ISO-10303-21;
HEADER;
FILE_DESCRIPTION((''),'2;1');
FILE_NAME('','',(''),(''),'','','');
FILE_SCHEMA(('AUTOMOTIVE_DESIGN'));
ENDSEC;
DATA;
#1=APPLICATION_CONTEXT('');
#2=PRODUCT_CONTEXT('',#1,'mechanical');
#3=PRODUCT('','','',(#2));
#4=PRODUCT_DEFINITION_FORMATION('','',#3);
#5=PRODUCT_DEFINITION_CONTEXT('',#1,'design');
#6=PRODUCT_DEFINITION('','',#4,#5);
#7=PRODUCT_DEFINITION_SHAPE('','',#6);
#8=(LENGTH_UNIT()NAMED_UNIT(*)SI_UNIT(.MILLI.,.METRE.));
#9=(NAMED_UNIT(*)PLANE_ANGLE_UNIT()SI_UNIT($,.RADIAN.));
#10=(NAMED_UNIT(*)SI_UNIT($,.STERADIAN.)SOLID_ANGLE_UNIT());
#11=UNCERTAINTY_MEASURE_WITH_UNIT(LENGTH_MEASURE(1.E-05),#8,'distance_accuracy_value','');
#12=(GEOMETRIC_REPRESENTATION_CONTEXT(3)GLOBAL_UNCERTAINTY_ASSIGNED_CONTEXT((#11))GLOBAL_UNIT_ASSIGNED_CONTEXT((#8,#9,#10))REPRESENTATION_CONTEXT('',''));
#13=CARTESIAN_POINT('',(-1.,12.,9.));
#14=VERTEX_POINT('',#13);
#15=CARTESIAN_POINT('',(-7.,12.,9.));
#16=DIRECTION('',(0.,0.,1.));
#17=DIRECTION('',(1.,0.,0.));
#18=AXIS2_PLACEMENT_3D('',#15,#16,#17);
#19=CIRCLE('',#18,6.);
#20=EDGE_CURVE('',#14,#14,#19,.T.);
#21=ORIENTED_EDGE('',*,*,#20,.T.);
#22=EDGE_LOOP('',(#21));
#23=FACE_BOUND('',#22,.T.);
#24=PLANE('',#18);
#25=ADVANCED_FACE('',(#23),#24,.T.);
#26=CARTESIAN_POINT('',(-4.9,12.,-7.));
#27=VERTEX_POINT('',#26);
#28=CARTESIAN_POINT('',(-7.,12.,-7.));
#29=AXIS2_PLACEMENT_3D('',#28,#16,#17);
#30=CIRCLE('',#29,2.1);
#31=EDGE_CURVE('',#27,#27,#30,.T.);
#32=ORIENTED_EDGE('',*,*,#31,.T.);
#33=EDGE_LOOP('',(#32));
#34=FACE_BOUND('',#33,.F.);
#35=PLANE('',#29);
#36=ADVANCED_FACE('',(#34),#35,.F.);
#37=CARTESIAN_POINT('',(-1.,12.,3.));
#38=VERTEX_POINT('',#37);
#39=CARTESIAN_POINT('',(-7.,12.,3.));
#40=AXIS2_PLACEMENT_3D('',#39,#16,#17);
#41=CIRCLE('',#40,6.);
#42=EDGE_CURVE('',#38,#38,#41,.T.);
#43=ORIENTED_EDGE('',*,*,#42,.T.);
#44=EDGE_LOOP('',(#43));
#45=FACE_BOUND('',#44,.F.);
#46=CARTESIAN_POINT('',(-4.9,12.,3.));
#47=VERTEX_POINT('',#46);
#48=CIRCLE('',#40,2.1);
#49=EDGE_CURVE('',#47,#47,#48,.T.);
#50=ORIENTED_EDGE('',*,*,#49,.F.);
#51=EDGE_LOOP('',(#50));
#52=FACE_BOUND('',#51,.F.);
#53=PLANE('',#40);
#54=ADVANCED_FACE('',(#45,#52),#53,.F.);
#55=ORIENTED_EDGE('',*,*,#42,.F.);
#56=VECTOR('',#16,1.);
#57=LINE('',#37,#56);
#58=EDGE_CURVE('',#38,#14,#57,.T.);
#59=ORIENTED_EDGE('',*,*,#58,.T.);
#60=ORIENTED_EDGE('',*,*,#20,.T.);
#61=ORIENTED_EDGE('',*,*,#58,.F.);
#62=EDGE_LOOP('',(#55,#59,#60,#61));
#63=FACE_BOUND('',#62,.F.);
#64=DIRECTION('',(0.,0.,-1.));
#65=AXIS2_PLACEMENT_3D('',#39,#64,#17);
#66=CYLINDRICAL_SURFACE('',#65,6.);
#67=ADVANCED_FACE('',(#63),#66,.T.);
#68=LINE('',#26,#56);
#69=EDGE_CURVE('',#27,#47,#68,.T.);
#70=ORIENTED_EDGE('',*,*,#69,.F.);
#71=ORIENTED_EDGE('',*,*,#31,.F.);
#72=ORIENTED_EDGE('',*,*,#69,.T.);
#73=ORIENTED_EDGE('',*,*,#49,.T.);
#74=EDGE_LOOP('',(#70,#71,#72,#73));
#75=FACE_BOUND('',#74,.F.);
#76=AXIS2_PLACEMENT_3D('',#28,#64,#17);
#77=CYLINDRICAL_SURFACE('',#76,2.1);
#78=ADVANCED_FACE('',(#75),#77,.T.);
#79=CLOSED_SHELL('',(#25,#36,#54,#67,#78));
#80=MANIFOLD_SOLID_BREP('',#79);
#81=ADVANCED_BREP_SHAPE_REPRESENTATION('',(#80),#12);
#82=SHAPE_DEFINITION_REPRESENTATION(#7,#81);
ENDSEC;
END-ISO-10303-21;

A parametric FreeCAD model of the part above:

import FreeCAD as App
import Part
import Sketcher

doc = App.newDocument("Part")
body = doc.addObject("PartDesign::Body", "Body")

# Sketch on XY plane
sketch1 = body.newObject("Sketcher::SketchObject", "Sketch")
sketch1.AttachmentSupport = (doc.getObject("XY_Plane"), [""])
sketch1.MapMode = "FlatFace"
sketch1.AttachmentOffset = App.Placement(App.Vector(0, 0, 10), App.Rotation())
sketch1.addGeometry(Part.Circle(App.Vector(0, 0, 0), App.Vector(0, 0, 1), 6), False)
sketch1.addConstraint(Sketcher.Constraint("Coincident", 0, 3, -1, 1))
sketch1.addConstraint(Sketcher.Constraint("Diameter", 0, 12.0))
pad1 = body.newObject("PartDesign::Pad", "Pad")
pad1.Profile = sketch1
pad1.Length = 6
body2 = doc.addObject("PartDesign::Body", "Body001")

# Sketch on XY plane
sketch2 = body2.newObject("Sketcher::SketchObject", "Sketch001")
sketch2.AttachmentSupport = (doc.getObject("XY_Plane001"), [""])
sketch2.MapMode = "FlatFace"
sketch2.addGeometry(Part.Circle(App.Vector(0, 0, 0), App.Vector(0, 0, 1), 2.1), False)
sketch2.addConstraint(Sketcher.Constraint("Coincident", 0, 3, -1, 1))
sketch2.addConstraint(Sketcher.Constraint("Diameter", 0, 4.2))
pad2 = body2.newObject("PartDesign::Pad", "Pad001")
pad2.Profile = sketch2
pad2.Length = 10
doc.recompute()

boolean = body2.newObject("PartDesign::Boolean", "Boolean")
boolean.Type = "Fuse"
boolean.addObjects([body])
body3 = doc.addObject("PartDesign::Body", "Body002")
doc.recompute()

body2.Placement = App.Placement(App.Vector(-7, 12, -7), App.Rotation(App.Vector(0, 0, 1), 0))
boolean2 = body3.newObject("PartDesign::Boolean", "Boolean001")
boolean2.Type = "Fuse"
boolean2.addObjects([body2])

doc.recompute()
